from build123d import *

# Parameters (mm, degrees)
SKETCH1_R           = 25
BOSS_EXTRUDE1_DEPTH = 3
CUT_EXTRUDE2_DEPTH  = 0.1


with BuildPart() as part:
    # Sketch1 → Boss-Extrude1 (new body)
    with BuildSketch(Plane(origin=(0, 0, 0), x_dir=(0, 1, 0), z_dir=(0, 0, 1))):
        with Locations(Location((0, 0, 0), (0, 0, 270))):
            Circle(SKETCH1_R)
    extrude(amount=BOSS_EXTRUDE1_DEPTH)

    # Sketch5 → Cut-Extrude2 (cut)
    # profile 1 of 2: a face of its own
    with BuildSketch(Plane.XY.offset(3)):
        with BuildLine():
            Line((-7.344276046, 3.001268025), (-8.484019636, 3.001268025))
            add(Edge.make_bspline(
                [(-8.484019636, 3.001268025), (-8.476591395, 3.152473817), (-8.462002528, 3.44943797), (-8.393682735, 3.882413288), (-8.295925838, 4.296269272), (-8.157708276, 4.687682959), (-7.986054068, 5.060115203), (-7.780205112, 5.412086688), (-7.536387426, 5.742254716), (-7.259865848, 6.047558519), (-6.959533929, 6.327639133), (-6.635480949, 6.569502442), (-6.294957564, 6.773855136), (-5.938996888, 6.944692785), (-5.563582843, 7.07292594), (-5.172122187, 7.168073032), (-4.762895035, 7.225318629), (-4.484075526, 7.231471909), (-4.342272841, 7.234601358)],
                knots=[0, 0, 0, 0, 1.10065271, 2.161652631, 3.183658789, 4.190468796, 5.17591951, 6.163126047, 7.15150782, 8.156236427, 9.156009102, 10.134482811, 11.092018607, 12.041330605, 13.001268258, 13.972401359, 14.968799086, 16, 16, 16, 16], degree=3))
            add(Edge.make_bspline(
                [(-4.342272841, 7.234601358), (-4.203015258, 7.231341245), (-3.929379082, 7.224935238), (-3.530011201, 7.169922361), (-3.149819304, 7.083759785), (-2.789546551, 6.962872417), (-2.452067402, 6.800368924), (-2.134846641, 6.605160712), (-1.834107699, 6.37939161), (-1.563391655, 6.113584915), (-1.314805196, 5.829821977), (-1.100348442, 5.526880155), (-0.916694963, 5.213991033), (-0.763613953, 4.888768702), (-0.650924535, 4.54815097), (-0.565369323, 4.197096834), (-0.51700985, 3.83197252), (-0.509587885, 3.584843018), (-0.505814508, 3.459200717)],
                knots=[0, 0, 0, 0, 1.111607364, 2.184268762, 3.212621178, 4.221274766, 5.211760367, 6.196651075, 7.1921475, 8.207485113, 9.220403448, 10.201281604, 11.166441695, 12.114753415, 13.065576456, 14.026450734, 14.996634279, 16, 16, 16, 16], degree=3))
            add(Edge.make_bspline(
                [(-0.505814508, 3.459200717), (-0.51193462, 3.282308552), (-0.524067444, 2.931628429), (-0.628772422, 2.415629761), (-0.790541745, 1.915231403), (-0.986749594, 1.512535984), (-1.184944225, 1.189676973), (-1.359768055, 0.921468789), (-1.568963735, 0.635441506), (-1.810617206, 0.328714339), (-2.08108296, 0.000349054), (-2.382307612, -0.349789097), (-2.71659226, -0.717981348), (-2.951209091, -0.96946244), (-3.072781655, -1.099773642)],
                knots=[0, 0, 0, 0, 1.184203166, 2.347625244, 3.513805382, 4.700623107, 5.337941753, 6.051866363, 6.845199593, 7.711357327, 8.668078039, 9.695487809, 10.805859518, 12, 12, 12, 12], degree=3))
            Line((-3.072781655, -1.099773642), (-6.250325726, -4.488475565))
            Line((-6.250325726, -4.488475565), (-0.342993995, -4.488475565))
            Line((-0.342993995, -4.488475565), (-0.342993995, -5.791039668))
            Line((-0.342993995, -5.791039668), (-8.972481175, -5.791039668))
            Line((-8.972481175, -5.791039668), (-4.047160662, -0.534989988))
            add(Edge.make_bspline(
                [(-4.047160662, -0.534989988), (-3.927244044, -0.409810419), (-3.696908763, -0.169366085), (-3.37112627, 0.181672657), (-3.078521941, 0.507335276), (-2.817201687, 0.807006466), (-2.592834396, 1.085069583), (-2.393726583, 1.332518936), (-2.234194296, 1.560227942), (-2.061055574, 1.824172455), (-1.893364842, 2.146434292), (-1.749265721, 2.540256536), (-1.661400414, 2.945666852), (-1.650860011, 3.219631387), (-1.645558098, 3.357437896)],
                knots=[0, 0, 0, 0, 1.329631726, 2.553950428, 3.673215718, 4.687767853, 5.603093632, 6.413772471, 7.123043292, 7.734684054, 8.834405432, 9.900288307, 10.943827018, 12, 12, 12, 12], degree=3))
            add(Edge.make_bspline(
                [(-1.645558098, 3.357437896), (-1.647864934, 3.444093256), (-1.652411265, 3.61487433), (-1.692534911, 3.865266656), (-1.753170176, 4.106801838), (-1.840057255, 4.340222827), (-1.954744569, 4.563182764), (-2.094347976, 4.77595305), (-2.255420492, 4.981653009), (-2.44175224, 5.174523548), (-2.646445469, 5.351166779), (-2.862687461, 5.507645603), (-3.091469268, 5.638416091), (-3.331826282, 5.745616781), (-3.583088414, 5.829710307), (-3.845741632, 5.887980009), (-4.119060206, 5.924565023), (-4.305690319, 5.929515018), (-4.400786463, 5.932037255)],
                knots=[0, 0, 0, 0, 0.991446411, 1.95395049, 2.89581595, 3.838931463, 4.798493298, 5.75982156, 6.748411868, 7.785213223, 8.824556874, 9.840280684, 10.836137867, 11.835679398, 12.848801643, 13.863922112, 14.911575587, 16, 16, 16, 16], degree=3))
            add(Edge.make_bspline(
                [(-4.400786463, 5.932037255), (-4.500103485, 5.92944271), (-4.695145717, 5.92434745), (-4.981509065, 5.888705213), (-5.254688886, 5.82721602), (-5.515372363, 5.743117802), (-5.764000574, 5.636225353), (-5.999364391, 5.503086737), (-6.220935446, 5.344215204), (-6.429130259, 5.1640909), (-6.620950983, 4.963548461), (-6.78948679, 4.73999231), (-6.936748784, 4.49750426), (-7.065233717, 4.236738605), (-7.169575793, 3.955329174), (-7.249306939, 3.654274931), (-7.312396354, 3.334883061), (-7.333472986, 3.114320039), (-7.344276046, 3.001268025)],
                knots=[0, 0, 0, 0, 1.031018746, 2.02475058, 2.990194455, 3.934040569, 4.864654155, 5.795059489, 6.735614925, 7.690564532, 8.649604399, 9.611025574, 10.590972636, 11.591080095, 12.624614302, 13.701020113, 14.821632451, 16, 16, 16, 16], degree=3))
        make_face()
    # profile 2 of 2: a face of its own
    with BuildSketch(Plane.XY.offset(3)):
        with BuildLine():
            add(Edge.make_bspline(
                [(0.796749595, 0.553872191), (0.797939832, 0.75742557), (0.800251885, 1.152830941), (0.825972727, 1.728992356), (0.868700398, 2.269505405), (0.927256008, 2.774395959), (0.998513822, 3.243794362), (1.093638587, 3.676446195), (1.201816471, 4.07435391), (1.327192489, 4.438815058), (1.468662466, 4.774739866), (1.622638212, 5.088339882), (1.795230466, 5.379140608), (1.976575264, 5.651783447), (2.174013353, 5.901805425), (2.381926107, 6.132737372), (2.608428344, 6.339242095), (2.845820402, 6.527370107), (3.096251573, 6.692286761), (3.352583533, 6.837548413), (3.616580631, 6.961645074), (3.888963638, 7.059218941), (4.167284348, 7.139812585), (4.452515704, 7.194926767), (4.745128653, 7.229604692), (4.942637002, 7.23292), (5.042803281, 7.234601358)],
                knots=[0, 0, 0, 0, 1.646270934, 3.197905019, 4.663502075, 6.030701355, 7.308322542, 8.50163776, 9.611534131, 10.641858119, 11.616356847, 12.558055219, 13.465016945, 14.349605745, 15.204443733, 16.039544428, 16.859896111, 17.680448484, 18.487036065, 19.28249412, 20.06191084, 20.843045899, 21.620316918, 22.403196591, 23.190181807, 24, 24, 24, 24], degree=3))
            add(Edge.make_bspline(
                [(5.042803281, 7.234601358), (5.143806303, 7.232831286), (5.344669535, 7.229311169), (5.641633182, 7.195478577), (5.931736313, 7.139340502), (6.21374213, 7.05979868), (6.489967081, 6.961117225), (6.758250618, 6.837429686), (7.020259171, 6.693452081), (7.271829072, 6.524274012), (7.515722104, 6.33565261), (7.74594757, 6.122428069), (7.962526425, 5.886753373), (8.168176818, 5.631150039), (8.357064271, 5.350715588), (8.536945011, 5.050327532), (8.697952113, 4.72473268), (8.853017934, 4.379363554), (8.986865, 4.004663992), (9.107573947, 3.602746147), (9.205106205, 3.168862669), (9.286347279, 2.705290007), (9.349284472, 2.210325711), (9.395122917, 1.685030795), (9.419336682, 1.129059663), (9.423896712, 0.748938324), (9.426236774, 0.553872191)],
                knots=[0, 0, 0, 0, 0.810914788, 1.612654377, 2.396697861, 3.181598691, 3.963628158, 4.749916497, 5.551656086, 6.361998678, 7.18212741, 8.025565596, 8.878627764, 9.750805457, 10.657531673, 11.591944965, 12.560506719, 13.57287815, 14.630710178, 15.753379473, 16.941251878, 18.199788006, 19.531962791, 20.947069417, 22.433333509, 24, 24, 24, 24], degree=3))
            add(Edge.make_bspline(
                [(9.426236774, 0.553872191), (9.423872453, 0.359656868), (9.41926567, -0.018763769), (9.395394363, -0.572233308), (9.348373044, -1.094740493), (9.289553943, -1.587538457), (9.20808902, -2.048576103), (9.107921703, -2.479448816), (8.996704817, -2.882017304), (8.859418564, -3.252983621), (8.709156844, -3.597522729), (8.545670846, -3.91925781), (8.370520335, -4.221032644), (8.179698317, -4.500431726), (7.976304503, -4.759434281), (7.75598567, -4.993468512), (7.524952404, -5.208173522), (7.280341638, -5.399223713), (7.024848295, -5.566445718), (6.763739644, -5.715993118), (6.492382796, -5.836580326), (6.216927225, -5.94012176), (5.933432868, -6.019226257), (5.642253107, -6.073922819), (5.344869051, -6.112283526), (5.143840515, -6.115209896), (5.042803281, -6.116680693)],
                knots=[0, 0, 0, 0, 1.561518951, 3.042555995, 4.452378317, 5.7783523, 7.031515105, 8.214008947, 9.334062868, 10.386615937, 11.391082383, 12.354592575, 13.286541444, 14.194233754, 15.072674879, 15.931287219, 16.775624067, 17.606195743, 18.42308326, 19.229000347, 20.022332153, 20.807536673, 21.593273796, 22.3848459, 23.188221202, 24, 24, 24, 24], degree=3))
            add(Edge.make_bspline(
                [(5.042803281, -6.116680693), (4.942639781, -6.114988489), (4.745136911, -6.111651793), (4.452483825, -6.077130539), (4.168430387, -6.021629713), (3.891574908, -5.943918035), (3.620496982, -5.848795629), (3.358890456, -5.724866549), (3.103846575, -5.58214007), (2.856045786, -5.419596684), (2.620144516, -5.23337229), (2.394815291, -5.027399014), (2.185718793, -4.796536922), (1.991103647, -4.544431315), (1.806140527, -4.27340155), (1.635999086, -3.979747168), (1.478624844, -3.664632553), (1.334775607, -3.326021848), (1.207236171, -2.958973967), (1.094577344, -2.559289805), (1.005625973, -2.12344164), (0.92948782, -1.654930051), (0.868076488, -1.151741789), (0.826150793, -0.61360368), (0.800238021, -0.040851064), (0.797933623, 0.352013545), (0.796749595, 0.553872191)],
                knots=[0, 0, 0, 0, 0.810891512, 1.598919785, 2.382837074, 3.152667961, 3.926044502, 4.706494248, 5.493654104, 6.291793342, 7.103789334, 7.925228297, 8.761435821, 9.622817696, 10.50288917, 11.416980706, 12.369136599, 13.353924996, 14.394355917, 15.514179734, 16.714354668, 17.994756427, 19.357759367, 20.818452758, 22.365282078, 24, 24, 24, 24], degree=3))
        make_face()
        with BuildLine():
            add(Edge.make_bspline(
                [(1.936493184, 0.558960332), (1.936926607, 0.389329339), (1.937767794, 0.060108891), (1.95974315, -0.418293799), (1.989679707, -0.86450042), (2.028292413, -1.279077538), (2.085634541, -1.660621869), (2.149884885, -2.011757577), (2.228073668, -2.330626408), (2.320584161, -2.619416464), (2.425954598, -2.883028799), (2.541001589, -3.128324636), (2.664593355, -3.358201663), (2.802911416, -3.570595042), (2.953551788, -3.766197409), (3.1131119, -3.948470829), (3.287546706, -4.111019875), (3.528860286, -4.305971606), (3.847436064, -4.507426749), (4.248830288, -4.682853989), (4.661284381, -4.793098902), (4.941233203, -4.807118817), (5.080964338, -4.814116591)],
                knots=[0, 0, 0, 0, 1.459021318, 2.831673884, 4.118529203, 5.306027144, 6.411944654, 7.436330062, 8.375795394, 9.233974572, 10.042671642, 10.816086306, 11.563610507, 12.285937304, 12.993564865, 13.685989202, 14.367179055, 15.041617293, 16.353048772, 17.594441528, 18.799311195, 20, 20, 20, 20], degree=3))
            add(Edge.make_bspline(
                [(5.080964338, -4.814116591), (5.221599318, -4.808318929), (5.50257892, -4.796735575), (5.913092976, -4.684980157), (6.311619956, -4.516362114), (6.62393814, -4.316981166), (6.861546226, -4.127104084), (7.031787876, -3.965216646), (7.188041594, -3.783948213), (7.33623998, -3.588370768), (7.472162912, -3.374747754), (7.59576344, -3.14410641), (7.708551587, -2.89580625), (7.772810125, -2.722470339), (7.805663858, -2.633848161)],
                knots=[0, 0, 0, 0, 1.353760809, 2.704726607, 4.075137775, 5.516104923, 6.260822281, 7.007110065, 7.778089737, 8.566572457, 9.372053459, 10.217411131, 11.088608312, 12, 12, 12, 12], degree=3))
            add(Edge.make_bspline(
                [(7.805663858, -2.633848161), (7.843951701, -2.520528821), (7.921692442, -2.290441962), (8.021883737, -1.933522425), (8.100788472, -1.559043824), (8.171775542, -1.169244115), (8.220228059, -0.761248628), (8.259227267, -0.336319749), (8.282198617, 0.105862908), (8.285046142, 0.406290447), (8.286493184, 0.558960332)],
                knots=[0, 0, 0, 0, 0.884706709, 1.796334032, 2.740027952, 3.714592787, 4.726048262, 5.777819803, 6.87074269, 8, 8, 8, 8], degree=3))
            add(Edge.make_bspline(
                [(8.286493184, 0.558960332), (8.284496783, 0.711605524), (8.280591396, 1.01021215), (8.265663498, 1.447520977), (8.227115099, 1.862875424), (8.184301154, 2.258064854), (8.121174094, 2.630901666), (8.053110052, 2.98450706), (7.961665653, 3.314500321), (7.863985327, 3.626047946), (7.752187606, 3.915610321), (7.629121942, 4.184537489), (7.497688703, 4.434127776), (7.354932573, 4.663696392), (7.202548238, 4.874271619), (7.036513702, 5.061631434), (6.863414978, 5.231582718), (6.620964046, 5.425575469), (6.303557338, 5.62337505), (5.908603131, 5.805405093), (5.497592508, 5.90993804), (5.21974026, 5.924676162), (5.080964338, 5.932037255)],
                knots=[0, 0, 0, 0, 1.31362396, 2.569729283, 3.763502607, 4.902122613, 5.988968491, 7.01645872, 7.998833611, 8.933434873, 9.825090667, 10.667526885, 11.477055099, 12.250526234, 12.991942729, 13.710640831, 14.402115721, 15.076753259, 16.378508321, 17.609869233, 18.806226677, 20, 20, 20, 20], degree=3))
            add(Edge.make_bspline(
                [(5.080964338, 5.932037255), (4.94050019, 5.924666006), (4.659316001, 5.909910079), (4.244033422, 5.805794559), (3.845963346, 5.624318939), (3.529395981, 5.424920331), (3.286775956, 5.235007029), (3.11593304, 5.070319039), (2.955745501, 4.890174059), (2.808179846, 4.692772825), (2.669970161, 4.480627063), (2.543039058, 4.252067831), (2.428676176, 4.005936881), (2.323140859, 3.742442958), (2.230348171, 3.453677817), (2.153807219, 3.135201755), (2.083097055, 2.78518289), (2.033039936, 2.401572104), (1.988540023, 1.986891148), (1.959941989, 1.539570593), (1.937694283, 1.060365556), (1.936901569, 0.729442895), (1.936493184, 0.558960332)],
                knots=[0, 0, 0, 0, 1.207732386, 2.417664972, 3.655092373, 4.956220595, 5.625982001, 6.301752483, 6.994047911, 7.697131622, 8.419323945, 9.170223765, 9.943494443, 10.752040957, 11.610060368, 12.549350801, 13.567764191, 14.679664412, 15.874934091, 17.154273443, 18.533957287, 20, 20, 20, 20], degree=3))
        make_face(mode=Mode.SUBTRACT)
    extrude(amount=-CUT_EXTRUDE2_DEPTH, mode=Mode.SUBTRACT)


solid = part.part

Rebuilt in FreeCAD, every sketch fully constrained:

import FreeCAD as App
import Part
import Sketcher

V = App.Vector
Q = App.Units.Quantity

doc = App.newDocument("Part")
body = doc.addObject("PartDesign::Body", "Body")

# Sketch on XY plane
sketch1 = body.newObject("Sketcher::SketchObject", "Sketch")
sketch1.AttachmentSupport = (doc.getObject("XY_Plane"), [""])
sketch1.MapMode = "FlatFace"
sketch1.addGeometry(Part.Circle(V(0, 0, 0), V(0, 0, 1), 25), False)
sketch1.addConstraint(Sketcher.Constraint("Coincident", 0, 3, -1, 1))
sketch1.addConstraint(Sketcher.Constraint("Diameter", 0, Q("50 mm")))
pad1 = body.newObject("PartDesign::Pad", "Pad")
pad1.Profile = sketch1
pad1.Length = 3

# Sketch on XY plane
sketch2 = body.newObject("Sketcher::SketchObject", "Sketch001")
sketch2.AttachmentSupport = (doc.getObject("XY_Plane"), [""])
sketch2.MapMode = "FlatFace"
sketch2.AttachmentOffset = App.Placement(V(0, 0, 3), App.Rotation())
sketch2.addGeometry(Part.LineSegment(V(-8.48402, 3.001268, 0), V(-7.344276, 3.001268, 0)), False)
sketch2.addGeometry(Part.BSplineCurve([V(-4.400786, 5.932037, 0), V(-4.500103, 5.929443, 0), V(-4.695146, 5.924347, 0), V(-4.981509, 5.888705, 0), V(-5.254689, 5.827216, 0), V(-5.515372, 5.743118, 0), V(-5.764001, 5.636225, 0), V(-5.999364, 5.503087, 0), V(-6.220935, 5.344215, 0), V(-6.42913, 5.164091, 0), V(-6.620951, 4.963548, 0), V(-6.789487, 4.739992, 0), V(-6.936749, 4.497504, 0), V(-7.065234, 4.236739, 0), V(-7.169576, 3.955329, 0), V(-7.249307, 3.654275, 0), V(-7.312396, 3.334883, 0), V(-7.333473, 3.11432, 0), V(-7.344276, 3.001268, 0)], [4, 1, 1, 1, 1, 1, 1, 1, 1, 1, 1, 1, 1, 1, 1, 1, 4], [0, 1.031018746, 2.02475058, 2.990194455, 3.934040569, 4.864654155, 5.795059489, 6.735614925, 7.690564532, 8.649604399, 9.611025574, 10.590972636, 11.591080095, 12.624614302, 13.701020113, 14.821632451, 16], False, 3, [1, 1, 1, 1, 1, 1, 1, 1, 1, 1, 1, 1, 1, 1, 1, 1, 1, 1, 1], False), False)
sketch2.addGeometry(Part.BSplineCurve([V(-1.645558, 3.357438, 0), V(-1.647865, 3.444093, 0), V(-1.652411, 3.614874, 0), V(-1.692535, 3.865267, 0), V(-1.75317, 4.106802, 0), V(-1.840057, 4.340223, 0), V(-1.954745, 4.563183, 0), V(-2.094348, 4.775953, 0), V(-2.25542, 4.981653, 0), V(-2.441752, 5.174524, 0), V(-2.646445, 5.351167, 0), V(-2.862687, 5.507646, 0), V(-3.091469, 5.638416, 0), V(-3.331826, 5.745617, 0), V(-3.583088, 5.82971, 0), V(-3.845742, 5.88798, 0), V(-4.11906, 5.924565, 0), V(-4.30569, 5.929515, 0), V(-4.400786, 5.932037, 0)], [4, 1, 1, 1, 1, 1, 1, 1, 1, 1, 1, 1, 1, 1, 1, 1, 4], [0, 0.991446411, 1.95395049, 2.89581595, 3.838931463, 4.798493298, 5.75982156, 6.748411868, 7.785213223, 8.824556874, 9.840280684, 10.836137867, 11.835679398, 12.848801643, 13.863922112, 14.911575587, 16], False, 3, [1, 1, 1, 1, 1, 1, 1, 1, 1, 1, 1, 1, 1, 1, 1, 1, 1, 1, 1], False), False)
sketch2.addGeometry(Part.BSplineCurve([V(-4.047161, -0.53499, 0), V(-3.927244, -0.40981, 0), V(-3.696909, -0.169366, 0), V(-3.371126, 0.181673, 0), V(-3.078522, 0.507335, 0), V(-2.817202, 0.807006, 0), V(-2.592834, 1.08507, 0), V(-2.393727, 1.332519, 0), V(-2.234194, 1.560228, 0), V(-2.061056, 1.824172, 0), V(-1.893365, 2.146434, 0), V(-1.749266, 2.540257, 0), V(-1.6614, 2.945667, 0), V(-1.65086, 3.219631, 0), V(-1.645558, 3.357438, 0)], [4, 1, 1, 1, 1, 1, 1, 1, 1, 1, 1, 1, 4], [0, 1.329631726, 2.553950428, 3.673215718, 4.687767853, 5.603093632, 6.413772471, 7.123043292, 7.734684054, 8.834405432, 9.900288307, 10.943827018, 12], False, 3, [1, 1, 1, 1, 1, 1, 1, 1, 1, 1, 1, 1, 1, 1, 1], False), False)
sketch2.addGeometry(Part.LineSegment(V(-4.047161, -0.53499, 0), V(-8.972481, -5.79104, 0)), False)
sketch2.addGeometry(Part.LineSegment(V(-8.972481, -5.79104, 0), V(-0.342994, -5.79104, 0)), False)
sketch2.addGeometry(Part.LineSegment(V(-0.342994, -5.79104, 0), V(-0.342994, -4.488476, 0)), False)
sketch2.addGeometry(Part.LineSegment(V(-0.342994, -4.488476, 0), V(-6.250326, -4.488476, 0)), False)
sketch2.addGeometry(Part.LineSegment(V(-6.250326, -4.488476, 0), V(-3.072782, -1.099774, 0)), False)
sketch2.addGeometry(Part.BSplineCurve([V(-0.505815, 3.459201, 0), V(-0.511935, 3.282309, 0), V(-0.524067, 2.931628, 0), V(-0.628772, 2.41563, 0), V(-0.790542, 1.915231, 0), V(-0.98675, 1.512536, 0), V(-1.184944, 1.189677, 0), V(-1.359768, 0.921469, 0), V(-1.568964, 0.635442, 0), V(-1.810617, 0.328714, 0), V(-2.081083, 0.000349, 0), V(-2.382308, -0.349789, 0), V(-2.716592, -0.717981, 0), V(-2.951209, -0.969462, 0), V(-3.072782, -1.099774, 0)], [4, 1, 1, 1, 1, 1, 1, 1, 1, 1, 1, 1, 4], [0, 1.184203166, 2.347625244, 3.513805382, 4.700623107, 5.337941753, 6.051866363, 6.845199593, 7.711357327, 8.668078039, 9.695487809, 10.805859518, 12], False, 3, [1, 1, 1, 1, 1, 1, 1, 1, 1, 1, 1, 1, 1, 1, 1], False), False)
sketch2.addGeometry(Part.BSplineCurve([V(-4.342273, 7.234601, 0), V(-4.203015, 7.231341, 0), V(-3.929379, 7.224935, 0), V(-3.530011, 7.169922, 0), V(-3.149819, 7.08376, 0), V(-2.789547, 6.962872, 0), V(-2.452067, 6.800369, 0), V(-2.134847, 6.605161, 0), V(-1.834108, 6.379392, 0), V(-1.563392, 6.113585, 0), V(-1.314805, 5.829822, 0), V(-1.100348, 5.52688, 0), V(-0.916695, 5.213991, 0), V(-0.763614, 4.888769, 0), V(-0.650925, 4.548151, 0), V(-0.565369, 4.197097, 0), V(-0.51701, 3.831973, 0), V(-0.509588, 3.584843, 0), V(-0.505815, 3.459201, 0)], [4, 1, 1, 1, 1, 1, 1, 1, 1, 1, 1, 1, 1, 1, 1, 1, 4], [0, 1.111607364, 2.184268762, 3.212621178, 4.221274766, 5.211760367, 6.196651075, 7.1921475, 8.207485113, 9.220403448, 10.201281604, 11.166441695, 12.114753415, 13.065576456, 14.026450734, 14.996634279, 16], False, 3, [1, 1, 1, 1, 1, 1, 1, 1, 1, 1, 1, 1, 1, 1, 1, 1, 1, 1, 1], False), False)
sketch2.addGeometry(Part.BSplineCurve([V(-8.48402, 3.001268, 0), V(-8.476591, 3.152474, 0), V(-8.462003, 3.449438, 0), V(-8.393683, 3.882413, 0), V(-8.295926, 4.296269, 0), V(-8.157708, 4.687683, 0), V(-7.986054, 5.060115, 0), V(-7.780205, 5.412087, 0), V(-7.536387, 5.742255, 0), V(-7.259866, 6.047559, 0), V(-6.959534, 6.327639, 0), V(-6.635481, 6.569502, 0), V(-6.294958, 6.773855, 0), V(-5.938997, 6.944693, 0), V(-5.563583, 7.072926, 0), V(-5.172122, 7.168073, 0), V(-4.762895, 7.225319, 0), V(-4.484076, 7.231472, 0), V(-4.342273, 7.234601, 0)], [4, 1, 1, 1, 1, 1, 1, 1, 1, 1, 1, 1, 1, 1, 1, 1, 4], [0, 1.10065271, 2.161652631, 3.183658789, 4.190468796, 5.17591951, 6.163126047, 7.15150782, 8.156236427, 9.156009102, 10.134482811, 11.092018607, 12.041330605, 13.001268258, 13.972401359, 14.968799086, 16], False, 3, [1, 1, 1, 1, 1, 1, 1, 1, 1, 1, 1, 1, 1, 1, 1, 1, 1, 1, 1], False), False)
sketch2.addGeometry(Part.BSplineCurve([V(0.79675, 0.553872, 0), V(0.79794, 0.757426, 0), V(0.800252, 1.152831, 0), V(0.825973, 1.728992, 0), V(0.8687, 2.269505, 0), V(0.927256, 2.774396, 0), V(0.998514, 3.243794, 0), V(1.093639, 3.676446, 0), V(1.201816, 4.074354, 0), V(1.327192, 4.438815, 0), V(1.468662, 4.77474, 0), V(1.622638, 5.08834, 0), V(1.79523, 5.379141, 0), V(1.976575, 5.651783, 0), V(2.174013, 5.901805, 0), V(2.381926, 6.132737, 0), V(2.608428, 6.339242, 0), V(2.84582, 6.52737, 0), V(3.096252, 6.692287, 0), V(3.352584, 6.837548, 0), V(3.616581, 6.961645, 0), V(3.888964, 7.059219, 0), V(4.167284, 7.139813, 0), V(4.452516, 7.194927, 0), V(4.745129, 7.229605, 0), V(4.942637, 7.23292, 0), V(5.042803, 7.234601, 0)], [4, 1, 1, 1, 1, 1, 1, 1, 1, 1, 1, 1, 1, 1, 1, 1, 1, 1, 1, 1, 1, 1, 1, 1, 4], [0, 1.646270934, 3.197905019, 4.663502075, 6.030701355, 7.308322542, 8.50163776, 9.611534131, 10.641858119, 11.616356847, 12.558055219, 13.465016945, 14.349605745, 15.204443733, 16.039544428, 16.859896111, 17.680448484, 18.487036065, 19.28249412, 20.06191084, 20.843045899, 21.620316918, 22.403196591, 23.190181807, 24], False, 3, [1, 1, 1, 1, 1, 1, 1, 1, 1, 1, 1, 1, 1, 1, 1, 1, 1, 1, 1, 1, 1, 1, 1, 1, 1, 1, 1], False), False)
sketch2.addGeometry(Part.BSplineCurve([V(5.042803, -6.116681, 0), V(4.94264, -6.114988, 0), V(4.745137, -6.111652, 0), V(4.452484, -6.077131, 0), V(4.16843, -6.02163, 0), V(3.891575, -5.943918, 0), V(3.620497, -5.848796, 0), V(3.35889, -5.724867, 0), V(3.103847, -5.58214, 0), V(2.856046, -5.419597, 0), V(2.620145, -5.233372, 0), V(2.394815, -5.027399, 0), V(2.185719, -4.796537, 0), V(1.991104, -4.544431, 0), V(1.806141, -4.273402, 0), V(1.635999, -3.979747, 0), V(1.478625, -3.664633, 0), V(1.334776, -3.326022, 0), V(1.207236, -2.958974, 0), V(1.094577, -2.55929, 0), V(1.005626, -2.123442, 0), V(0.929488, -1.65493, 0), V(0.868076, -1.151742, 0), V(0.826151, -0.613604, 0), V(0.800238, -0.040851, 0), V(0.797934, 0.352014, 0), V(0.79675, 0.553872, 0)], [4, 1, 1, 1, 1, 1, 1, 1, 1, 1, 1, 1, 1, 1, 1, 1, 1, 1, 1, 1, 1, 1, 1, 1, 4], [0, 0.810891512, 1.598919785, 2.382837074, 3.152667961, 3.926044502, 4.706494248, 5.493654104, 6.291793342, 7.103789334, 7.925228297, 8.761435821, 9.622817696, 10.50288917, 11.416980706, 12.369136599, 13.353924996, 14.394355917, 15.514179734, 16.714354668, 17.994756427, 19.357759367, 20.818452758, 22.365282078, 24], False, 3, [1, 1, 1, 1, 1, 1, 1, 1, 1, 1, 1, 1, 1, 1, 1, 1, 1, 1, 1, 1, 1, 1, 1, 1, 1, 1, 1], False), False)
sketch2.addGeometry(Part.BSplineCurve([V(9.426237, 0.553872, 0), V(9.423872, 0.359657, 0), V(9.419266, -0.018764, 0), V(9.395394, -0.572233, 0), V(9.348373, -1.09474, 0), V(9.289554, -1.587538, 0), V(9.208089, -2.048576, 0), V(9.107922, -2.479449, 0), V(8.996705, -2.882017, 0), V(8.859419, -3.252984, 0), V(8.709157, -3.597523, 0), V(8.545671, -3.919258, 0), V(8.37052, -4.221033, 0), V(8.179698, -4.500432, 0), V(7.976305, -4.759434, 0), V(7.755986, -4.993469, 0), V(7.524952, -5.208174, 0), V(7.280342, -5.399224, 0), V(7.024848, -5.566446, 0), V(6.76374, -5.715993, 0), V(6.492383, -5.83658, 0), V(6.216927, -5.940122, 0), V(5.933433, -6.019226, 0), V(5.642253, -6.073923, 0), V(5.344869, -6.112284, 0), V(5.143841, -6.11521, 0), V(5.042803, -6.116681, 0)], [4, 1, 1, 1, 1, 1, 1, 1, 1, 1, 1, 1, 1, 1, 1, 1, 1, 1, 1, 1, 1, 1, 1, 1, 4], [0, 1.561518951, 3.042555995, 4.452378317, 5.7783523, 7.031515105, 8.214008947, 9.334062868, 10.386615937, 11.391082383, 12.354592575, 13.286541444, 14.194233754, 15.072674879, 15.931287219, 16.775624067, 17.606195743, 18.42308326, 19.229000347, 20.022332153, 20.807536673, 21.593273796, 22.3848459, 23.188221202, 24], False, 3, [1, 1, 1, 1, 1, 1, 1, 1, 1, 1, 1, 1, 1, 1, 1, 1, 1, 1, 1, 1, 1, 1, 1, 1, 1, 1, 1], False), False)
sketch2.addGeometry(Part.BSplineCurve([V(5.042803, 7.234601, 0), V(5.143806, 7.232831, 0), V(5.34467, 7.229311, 0), V(5.641633, 7.195479, 0), V(5.931736, 7.139341, 0), V(6.213742, 7.059799, 0), V(6.489967, 6.961117, 0), V(6.758251, 6.83743, 0), V(7.020259, 6.693452, 0), V(7.271829, 6.524274, 0), V(7.515722, 6.335653, 0), V(7.745948, 6.122428, 0), V(7.962526, 5.886753, 0), V(8.168177, 5.63115, 0), V(8.357064, 5.350716, 0), V(8.536945, 5.050328, 0), V(8.697952, 4.724733, 0), V(8.853018, 4.379364, 0), V(8.986865, 4.004664, 0), V(9.107574, 3.602746, 0), V(9.205106, 3.168863, 0), V(9.286347, 2.70529, 0), V(9.349284, 2.210326, 0), V(9.395123, 1.685031, 0), V(9.419337, 1.12906, 0), V(9.423897, 0.748938, 0), V(9.426237, 0.553872, 0)], [4, 1, 1, 1, 1, 1, 1, 1, 1, 1, 1, 1, 1, 1, 1, 1, 1, 1, 1, 1, 1, 1, 1, 1, 4], [0, 0.810914788, 1.612654377, 2.396697861, 3.181598691, 3.963628158, 4.749916497, 5.551656086, 6.361998678, 7.18212741, 8.025565596, 8.878627764, 9.750805457, 10.657531673, 11.591944965, 12.560506719, 13.57287815, 14.630710178, 15.753379473, 16.941251878, 18.199788006, 19.531962791, 20.947069417, 22.433333509, 24], False, 3, [1, 1, 1, 1, 1, 1, 1, 1, 1, 1, 1, 1, 1, 1, 1, 1, 1, 1, 1, 1, 1, 1, 1, 1, 1, 1, 1], False), False)
sketch2.addGeometry(Part.BSplineCurve([V(5.080964, 5.932037, 0), V(4.9405, 5.924666, 0), V(4.659316, 5.90991, 0), V(4.244033, 5.805795, 0), V(3.845963, 5.624319, 0), V(3.529396, 5.42492, 0), V(3.286776, 5.235007, 0), V(3.115933, 5.070319, 0), V(2.955746, 4.890174, 0), V(2.80818, 4.692773, 0), V(2.66997, 4.480627, 0), V(2.543039, 4.252068, 0), V(2.428676, 4.005937, 0), V(2.323141, 3.742443, 0), V(2.230348, 3.453678, 0), V(2.153807, 3.135202, 0), V(2.083097, 2.785183, 0), V(2.03304, 2.401572, 0), V(1.98854, 1.986891, 0), V(1.959942, 1.539571, 0), V(1.937694, 1.060366, 0), V(1.936902, 0.729443, 0), V(1.936493, 0.55896, 0)], [4, 1, 1, 1, 1, 1, 1, 1, 1, 1, 1, 1, 1, 1, 1, 1, 1, 1, 1, 1, 4], [0, 1.207732386, 2.417664972, 3.655092373, 4.956220595, 5.625982001, 6.301752483, 6.994047911, 7.697131622, 8.419323945, 9.170223765, 9.943494443, 10.752040957, 11.610060368, 12.549350801, 13.567764191, 14.679664412, 15.874934091, 17.154273443, 18.533957287, 20], False, 3, [1, 1, 1, 1, 1, 1, 1, 1, 1, 1, 1, 1, 1, 1, 1, 1, 1, 1, 1, 1, 1, 1, 1], False), False)
sketch2.addGeometry(Part.BSplineCurve([V(8.286493, 0.55896, 0), V(8.284497, 0.711606, 0), V(8.280591, 1.010212, 0), V(8.265663, 1.447521, 0), V(8.227115, 1.862875, 0), V(8.184301, 2.258065, 0), V(8.121174, 2.630902, 0), V(8.05311, 2.984507, 0), V(7.961666, 3.3145, 0), V(7.863985, 3.626048, 0), V(7.752188, 3.91561, 0), V(7.629122, 4.184537, 0), V(7.497689, 4.434128, 0), V(7.354933, 4.663696, 0), V(7.202548, 4.874272, 0), V(7.036514, 5.061631, 0), V(6.863415, 5.231583, 0), V(6.620964, 5.425575, 0), V(6.303557, 5.623375, 0), V(5.908603, 5.805405, 0), V(5.497593, 5.909938, 0), V(5.21974, 5.924676, 0), V(5.080964, 5.932037, 0)], [4, 1, 1, 1, 1, 1, 1, 1, 1, 1, 1, 1, 1, 1, 1, 1, 1, 1, 1, 1, 4], [0, 1.31362396, 2.569729283, 3.763502607, 4.902122613, 5.988968491, 7.01645872, 7.998833611, 8.933434873, 9.825090667, 10.667526885, 11.477055099, 12.250526234, 12.991942729, 13.710640831, 14.402115721, 15.076753259, 16.378508321, 17.609869233, 18.806226677, 20], False, 3, [1, 1, 1, 1, 1, 1, 1, 1, 1, 1, 1, 1, 1, 1, 1, 1, 1, 1, 1, 1, 1, 1, 1], False), False)
sketch2.addGeometry(Part.BSplineCurve([V(7.805664, -2.633848, 0), V(7.843952, -2.520529, 0), V(7.921692, -2.290442, 0), V(8.021884, -1.933522, 0), V(8.100788, -1.559044, 0), V(8.171776, -1.169244, 0), V(8.220228, -0.761249, 0), V(8.259227, -0.33632, 0), V(8.282199, 0.105863, 0), V(8.285046, 0.40629, 0), V(8.286493, 0.55896, 0)], [4, 1, 1, 1, 1, 1, 1, 1, 4], [0, 0.884706709, 1.796334032, 2.740027952, 3.714592787, 4.726048262, 5.777819803, 6.87074269, 8], False, 3, [1, 1, 1, 1, 1, 1, 1, 1, 1, 1, 1], False), False)
sketch2.addGeometry(Part.BSplineCurve([V(5.080964, -4.814117, 0), V(5.221599, -4.808319, 0), V(5.502579, -4.796736, 0), V(5.913093, -4.68498, 0), V(6.31162, -4.516362, 0), V(6.623938, -4.316981, 0), V(6.861546, -4.127104, 0), V(7.031788, -3.965217, 0), V(7.188042, -3.783948, 0), V(7.33624, -3.588371, 0), V(7.472163, -3.374748, 0), V(7.595763, -3.144106, 0), V(7.708552, -2.895806, 0), V(7.77281, -2.72247, 0), V(7.805664, -2.633848, 0)], [4, 1, 1, 1, 1, 1, 1, 1, 1, 1, 1, 1, 4], [0, 1.353760809, 2.704726607, 4.075137775, 5.516104923, 6.260822281, 7.007110065, 7.778089737, 8.566572457, 9.372053459, 10.217411131, 11.088608312, 12], False, 3, [1, 1, 1, 1, 1, 1, 1, 1, 1, 1, 1, 1, 1, 1, 1], False), False)
sketch2.addGeometry(Part.BSplineCurve([V(1.936493, 0.55896, 0), V(1.936927, 0.389329, 0), V(1.937768, 0.060109, 0), V(1.959743, -0.418294, 0), V(1.98968, -0.8645, 0), V(2.028292, -1.279078, 0), V(2.085635, -1.660622, 0), V(2.149885, -2.011758, 0), V(2.228074, -2.330626, 0), V(2.320584, -2.619416, 0), V(2.425955, -2.883029, 0), V(2.541002, -3.128325, 0), V(2.664593, -3.358202, 0), V(2.802911, -3.570595, 0), V(2.953552, -3.766197, 0), V(3.113112, -3.948471, 0), V(3.287547, -4.11102, 0), V(3.52886, -4.305972, 0), V(3.847436, -4.507427, 0), V(4.24883, -4.682854, 0), V(4.661284, -4.793099, 0), V(4.941233, -4.807119, 0), V(5.080964, -4.814117, 0)], [4, 1, 1, 1, 1, 1, 1, 1, 1, 1, 1, 1, 1, 1, 1, 1, 1, 1, 1, 1, 4], [0, 1.459021318, 2.831673884, 4.118529203, 5.306027144, 6.411944654, 7.436330062, 8.375795394, 9.233974572, 10.042671642, 10.816086306, 11.563610507, 12.285937304, 12.993564865, 13.685989202, 14.367179055, 15.041617293, 16.353048772, 17.594441528, 18.799311195, 20], False, 3, [1, 1, 1, 1, 1, 1, 1, 1, 1, 1, 1, 1, 1, 1, 1, 1, 1, 1, 1, 1, 1, 1, 1], False), False)
sketch2.addConstraint(Sketcher.Constraint("Block", 1))
sketch2.addConstraint(Sketcher.Constraint("Block", 2))
sketch2.addConstraint(Sketcher.Constraint("Block", 3))
sketch2.addConstraint(Sketcher.Constraint("Block", 9))
sketch2.addConstraint(Sketcher.Constraint("Block", 10))
sketch2.addConstraint(Sketcher.Constraint("Block", 11))
sketch2.addConstraint(Sketcher.Constraint("Block", 12))
sketch2.addConstraint(Sketcher.Constraint("Block", 13))
sketch2.addConstraint(Sketcher.Constraint("Block", 14))
sketch2.addConstraint(Sketcher.Constraint("Block", 15))
sketch2.addConstraint(Sketcher.Constraint("Block", 16))
sketch2.addConstraint(Sketcher.Constraint("Block", 17))
sketch2.addConstraint(Sketcher.Constraint("Block", 18))
sketch2.addConstraint(Sketcher.Constraint("Block", 19))
sketch2.addConstraint(Sketcher.Constraint("Block", 20))
sketch2.addConstraint(Sketcher.Constraint("Coincident", 0, 2, 1, 2))
sketch2.addConstraint(Sketcher.Constraint("Coincident", 3, 1, 4, 1))
sketch2.addConstraint(Sketcher.Constraint("Coincident", 4, 2, 5, 1))
sketch2.addConstraint(Sketcher.Constraint("Coincident", 5, 2, 6, 1))
sketch2.addConstraint(Sketcher.Constraint("Coincident", 6, 2, 7, 1))
sketch2.addConstraint(Sketcher.Constraint("Coincident", 7, 2, 8, 1))
sketch2.addConstraint(Sketcher.Constraint("Coincident", 8, 2, 9, 2))
sketch2.addConstraint(Sketcher.Constraint("Coincident", 11, 1, 0, 1))
sketch2.addConstraint(Sketcher.Constraint("Horizontal", 5))
sketch2.addConstraint(Sketcher.Constraint("Vertical", 6))
sketch2.addConstraint(Sketcher.Constraint("Horizontal", 7))
sketch2.addConstraint(Sketcher.Constraint("DistanceX", 7, 2, 7, 1, Q("5.907332 mm")))
sketch2.addConstraint(Sketcher.Constraint("DistanceY", 6, 2, 8, 2, Q("3.388702 mm")))
sketch2.addConstraint(Sketcher.Constraint("DistanceX", 4, 2, 8, 2, Q("5.8997 mm")))
sketch2.addConstraint(Sketcher.Constraint("DistanceX", 5, 1, 5, 2, Q("8.629487 mm")))
sketch2.addConstraint(Sketcher.Constraint("DistanceY", 6, 1, 6, 2, Q("1.302564 mm")))
pocket1 = body.newObject("PartDesign::Pocket", "Pocket")
pocket1.Profile = sketch2
pocket1.Length = 0.1

doc.recompute()
